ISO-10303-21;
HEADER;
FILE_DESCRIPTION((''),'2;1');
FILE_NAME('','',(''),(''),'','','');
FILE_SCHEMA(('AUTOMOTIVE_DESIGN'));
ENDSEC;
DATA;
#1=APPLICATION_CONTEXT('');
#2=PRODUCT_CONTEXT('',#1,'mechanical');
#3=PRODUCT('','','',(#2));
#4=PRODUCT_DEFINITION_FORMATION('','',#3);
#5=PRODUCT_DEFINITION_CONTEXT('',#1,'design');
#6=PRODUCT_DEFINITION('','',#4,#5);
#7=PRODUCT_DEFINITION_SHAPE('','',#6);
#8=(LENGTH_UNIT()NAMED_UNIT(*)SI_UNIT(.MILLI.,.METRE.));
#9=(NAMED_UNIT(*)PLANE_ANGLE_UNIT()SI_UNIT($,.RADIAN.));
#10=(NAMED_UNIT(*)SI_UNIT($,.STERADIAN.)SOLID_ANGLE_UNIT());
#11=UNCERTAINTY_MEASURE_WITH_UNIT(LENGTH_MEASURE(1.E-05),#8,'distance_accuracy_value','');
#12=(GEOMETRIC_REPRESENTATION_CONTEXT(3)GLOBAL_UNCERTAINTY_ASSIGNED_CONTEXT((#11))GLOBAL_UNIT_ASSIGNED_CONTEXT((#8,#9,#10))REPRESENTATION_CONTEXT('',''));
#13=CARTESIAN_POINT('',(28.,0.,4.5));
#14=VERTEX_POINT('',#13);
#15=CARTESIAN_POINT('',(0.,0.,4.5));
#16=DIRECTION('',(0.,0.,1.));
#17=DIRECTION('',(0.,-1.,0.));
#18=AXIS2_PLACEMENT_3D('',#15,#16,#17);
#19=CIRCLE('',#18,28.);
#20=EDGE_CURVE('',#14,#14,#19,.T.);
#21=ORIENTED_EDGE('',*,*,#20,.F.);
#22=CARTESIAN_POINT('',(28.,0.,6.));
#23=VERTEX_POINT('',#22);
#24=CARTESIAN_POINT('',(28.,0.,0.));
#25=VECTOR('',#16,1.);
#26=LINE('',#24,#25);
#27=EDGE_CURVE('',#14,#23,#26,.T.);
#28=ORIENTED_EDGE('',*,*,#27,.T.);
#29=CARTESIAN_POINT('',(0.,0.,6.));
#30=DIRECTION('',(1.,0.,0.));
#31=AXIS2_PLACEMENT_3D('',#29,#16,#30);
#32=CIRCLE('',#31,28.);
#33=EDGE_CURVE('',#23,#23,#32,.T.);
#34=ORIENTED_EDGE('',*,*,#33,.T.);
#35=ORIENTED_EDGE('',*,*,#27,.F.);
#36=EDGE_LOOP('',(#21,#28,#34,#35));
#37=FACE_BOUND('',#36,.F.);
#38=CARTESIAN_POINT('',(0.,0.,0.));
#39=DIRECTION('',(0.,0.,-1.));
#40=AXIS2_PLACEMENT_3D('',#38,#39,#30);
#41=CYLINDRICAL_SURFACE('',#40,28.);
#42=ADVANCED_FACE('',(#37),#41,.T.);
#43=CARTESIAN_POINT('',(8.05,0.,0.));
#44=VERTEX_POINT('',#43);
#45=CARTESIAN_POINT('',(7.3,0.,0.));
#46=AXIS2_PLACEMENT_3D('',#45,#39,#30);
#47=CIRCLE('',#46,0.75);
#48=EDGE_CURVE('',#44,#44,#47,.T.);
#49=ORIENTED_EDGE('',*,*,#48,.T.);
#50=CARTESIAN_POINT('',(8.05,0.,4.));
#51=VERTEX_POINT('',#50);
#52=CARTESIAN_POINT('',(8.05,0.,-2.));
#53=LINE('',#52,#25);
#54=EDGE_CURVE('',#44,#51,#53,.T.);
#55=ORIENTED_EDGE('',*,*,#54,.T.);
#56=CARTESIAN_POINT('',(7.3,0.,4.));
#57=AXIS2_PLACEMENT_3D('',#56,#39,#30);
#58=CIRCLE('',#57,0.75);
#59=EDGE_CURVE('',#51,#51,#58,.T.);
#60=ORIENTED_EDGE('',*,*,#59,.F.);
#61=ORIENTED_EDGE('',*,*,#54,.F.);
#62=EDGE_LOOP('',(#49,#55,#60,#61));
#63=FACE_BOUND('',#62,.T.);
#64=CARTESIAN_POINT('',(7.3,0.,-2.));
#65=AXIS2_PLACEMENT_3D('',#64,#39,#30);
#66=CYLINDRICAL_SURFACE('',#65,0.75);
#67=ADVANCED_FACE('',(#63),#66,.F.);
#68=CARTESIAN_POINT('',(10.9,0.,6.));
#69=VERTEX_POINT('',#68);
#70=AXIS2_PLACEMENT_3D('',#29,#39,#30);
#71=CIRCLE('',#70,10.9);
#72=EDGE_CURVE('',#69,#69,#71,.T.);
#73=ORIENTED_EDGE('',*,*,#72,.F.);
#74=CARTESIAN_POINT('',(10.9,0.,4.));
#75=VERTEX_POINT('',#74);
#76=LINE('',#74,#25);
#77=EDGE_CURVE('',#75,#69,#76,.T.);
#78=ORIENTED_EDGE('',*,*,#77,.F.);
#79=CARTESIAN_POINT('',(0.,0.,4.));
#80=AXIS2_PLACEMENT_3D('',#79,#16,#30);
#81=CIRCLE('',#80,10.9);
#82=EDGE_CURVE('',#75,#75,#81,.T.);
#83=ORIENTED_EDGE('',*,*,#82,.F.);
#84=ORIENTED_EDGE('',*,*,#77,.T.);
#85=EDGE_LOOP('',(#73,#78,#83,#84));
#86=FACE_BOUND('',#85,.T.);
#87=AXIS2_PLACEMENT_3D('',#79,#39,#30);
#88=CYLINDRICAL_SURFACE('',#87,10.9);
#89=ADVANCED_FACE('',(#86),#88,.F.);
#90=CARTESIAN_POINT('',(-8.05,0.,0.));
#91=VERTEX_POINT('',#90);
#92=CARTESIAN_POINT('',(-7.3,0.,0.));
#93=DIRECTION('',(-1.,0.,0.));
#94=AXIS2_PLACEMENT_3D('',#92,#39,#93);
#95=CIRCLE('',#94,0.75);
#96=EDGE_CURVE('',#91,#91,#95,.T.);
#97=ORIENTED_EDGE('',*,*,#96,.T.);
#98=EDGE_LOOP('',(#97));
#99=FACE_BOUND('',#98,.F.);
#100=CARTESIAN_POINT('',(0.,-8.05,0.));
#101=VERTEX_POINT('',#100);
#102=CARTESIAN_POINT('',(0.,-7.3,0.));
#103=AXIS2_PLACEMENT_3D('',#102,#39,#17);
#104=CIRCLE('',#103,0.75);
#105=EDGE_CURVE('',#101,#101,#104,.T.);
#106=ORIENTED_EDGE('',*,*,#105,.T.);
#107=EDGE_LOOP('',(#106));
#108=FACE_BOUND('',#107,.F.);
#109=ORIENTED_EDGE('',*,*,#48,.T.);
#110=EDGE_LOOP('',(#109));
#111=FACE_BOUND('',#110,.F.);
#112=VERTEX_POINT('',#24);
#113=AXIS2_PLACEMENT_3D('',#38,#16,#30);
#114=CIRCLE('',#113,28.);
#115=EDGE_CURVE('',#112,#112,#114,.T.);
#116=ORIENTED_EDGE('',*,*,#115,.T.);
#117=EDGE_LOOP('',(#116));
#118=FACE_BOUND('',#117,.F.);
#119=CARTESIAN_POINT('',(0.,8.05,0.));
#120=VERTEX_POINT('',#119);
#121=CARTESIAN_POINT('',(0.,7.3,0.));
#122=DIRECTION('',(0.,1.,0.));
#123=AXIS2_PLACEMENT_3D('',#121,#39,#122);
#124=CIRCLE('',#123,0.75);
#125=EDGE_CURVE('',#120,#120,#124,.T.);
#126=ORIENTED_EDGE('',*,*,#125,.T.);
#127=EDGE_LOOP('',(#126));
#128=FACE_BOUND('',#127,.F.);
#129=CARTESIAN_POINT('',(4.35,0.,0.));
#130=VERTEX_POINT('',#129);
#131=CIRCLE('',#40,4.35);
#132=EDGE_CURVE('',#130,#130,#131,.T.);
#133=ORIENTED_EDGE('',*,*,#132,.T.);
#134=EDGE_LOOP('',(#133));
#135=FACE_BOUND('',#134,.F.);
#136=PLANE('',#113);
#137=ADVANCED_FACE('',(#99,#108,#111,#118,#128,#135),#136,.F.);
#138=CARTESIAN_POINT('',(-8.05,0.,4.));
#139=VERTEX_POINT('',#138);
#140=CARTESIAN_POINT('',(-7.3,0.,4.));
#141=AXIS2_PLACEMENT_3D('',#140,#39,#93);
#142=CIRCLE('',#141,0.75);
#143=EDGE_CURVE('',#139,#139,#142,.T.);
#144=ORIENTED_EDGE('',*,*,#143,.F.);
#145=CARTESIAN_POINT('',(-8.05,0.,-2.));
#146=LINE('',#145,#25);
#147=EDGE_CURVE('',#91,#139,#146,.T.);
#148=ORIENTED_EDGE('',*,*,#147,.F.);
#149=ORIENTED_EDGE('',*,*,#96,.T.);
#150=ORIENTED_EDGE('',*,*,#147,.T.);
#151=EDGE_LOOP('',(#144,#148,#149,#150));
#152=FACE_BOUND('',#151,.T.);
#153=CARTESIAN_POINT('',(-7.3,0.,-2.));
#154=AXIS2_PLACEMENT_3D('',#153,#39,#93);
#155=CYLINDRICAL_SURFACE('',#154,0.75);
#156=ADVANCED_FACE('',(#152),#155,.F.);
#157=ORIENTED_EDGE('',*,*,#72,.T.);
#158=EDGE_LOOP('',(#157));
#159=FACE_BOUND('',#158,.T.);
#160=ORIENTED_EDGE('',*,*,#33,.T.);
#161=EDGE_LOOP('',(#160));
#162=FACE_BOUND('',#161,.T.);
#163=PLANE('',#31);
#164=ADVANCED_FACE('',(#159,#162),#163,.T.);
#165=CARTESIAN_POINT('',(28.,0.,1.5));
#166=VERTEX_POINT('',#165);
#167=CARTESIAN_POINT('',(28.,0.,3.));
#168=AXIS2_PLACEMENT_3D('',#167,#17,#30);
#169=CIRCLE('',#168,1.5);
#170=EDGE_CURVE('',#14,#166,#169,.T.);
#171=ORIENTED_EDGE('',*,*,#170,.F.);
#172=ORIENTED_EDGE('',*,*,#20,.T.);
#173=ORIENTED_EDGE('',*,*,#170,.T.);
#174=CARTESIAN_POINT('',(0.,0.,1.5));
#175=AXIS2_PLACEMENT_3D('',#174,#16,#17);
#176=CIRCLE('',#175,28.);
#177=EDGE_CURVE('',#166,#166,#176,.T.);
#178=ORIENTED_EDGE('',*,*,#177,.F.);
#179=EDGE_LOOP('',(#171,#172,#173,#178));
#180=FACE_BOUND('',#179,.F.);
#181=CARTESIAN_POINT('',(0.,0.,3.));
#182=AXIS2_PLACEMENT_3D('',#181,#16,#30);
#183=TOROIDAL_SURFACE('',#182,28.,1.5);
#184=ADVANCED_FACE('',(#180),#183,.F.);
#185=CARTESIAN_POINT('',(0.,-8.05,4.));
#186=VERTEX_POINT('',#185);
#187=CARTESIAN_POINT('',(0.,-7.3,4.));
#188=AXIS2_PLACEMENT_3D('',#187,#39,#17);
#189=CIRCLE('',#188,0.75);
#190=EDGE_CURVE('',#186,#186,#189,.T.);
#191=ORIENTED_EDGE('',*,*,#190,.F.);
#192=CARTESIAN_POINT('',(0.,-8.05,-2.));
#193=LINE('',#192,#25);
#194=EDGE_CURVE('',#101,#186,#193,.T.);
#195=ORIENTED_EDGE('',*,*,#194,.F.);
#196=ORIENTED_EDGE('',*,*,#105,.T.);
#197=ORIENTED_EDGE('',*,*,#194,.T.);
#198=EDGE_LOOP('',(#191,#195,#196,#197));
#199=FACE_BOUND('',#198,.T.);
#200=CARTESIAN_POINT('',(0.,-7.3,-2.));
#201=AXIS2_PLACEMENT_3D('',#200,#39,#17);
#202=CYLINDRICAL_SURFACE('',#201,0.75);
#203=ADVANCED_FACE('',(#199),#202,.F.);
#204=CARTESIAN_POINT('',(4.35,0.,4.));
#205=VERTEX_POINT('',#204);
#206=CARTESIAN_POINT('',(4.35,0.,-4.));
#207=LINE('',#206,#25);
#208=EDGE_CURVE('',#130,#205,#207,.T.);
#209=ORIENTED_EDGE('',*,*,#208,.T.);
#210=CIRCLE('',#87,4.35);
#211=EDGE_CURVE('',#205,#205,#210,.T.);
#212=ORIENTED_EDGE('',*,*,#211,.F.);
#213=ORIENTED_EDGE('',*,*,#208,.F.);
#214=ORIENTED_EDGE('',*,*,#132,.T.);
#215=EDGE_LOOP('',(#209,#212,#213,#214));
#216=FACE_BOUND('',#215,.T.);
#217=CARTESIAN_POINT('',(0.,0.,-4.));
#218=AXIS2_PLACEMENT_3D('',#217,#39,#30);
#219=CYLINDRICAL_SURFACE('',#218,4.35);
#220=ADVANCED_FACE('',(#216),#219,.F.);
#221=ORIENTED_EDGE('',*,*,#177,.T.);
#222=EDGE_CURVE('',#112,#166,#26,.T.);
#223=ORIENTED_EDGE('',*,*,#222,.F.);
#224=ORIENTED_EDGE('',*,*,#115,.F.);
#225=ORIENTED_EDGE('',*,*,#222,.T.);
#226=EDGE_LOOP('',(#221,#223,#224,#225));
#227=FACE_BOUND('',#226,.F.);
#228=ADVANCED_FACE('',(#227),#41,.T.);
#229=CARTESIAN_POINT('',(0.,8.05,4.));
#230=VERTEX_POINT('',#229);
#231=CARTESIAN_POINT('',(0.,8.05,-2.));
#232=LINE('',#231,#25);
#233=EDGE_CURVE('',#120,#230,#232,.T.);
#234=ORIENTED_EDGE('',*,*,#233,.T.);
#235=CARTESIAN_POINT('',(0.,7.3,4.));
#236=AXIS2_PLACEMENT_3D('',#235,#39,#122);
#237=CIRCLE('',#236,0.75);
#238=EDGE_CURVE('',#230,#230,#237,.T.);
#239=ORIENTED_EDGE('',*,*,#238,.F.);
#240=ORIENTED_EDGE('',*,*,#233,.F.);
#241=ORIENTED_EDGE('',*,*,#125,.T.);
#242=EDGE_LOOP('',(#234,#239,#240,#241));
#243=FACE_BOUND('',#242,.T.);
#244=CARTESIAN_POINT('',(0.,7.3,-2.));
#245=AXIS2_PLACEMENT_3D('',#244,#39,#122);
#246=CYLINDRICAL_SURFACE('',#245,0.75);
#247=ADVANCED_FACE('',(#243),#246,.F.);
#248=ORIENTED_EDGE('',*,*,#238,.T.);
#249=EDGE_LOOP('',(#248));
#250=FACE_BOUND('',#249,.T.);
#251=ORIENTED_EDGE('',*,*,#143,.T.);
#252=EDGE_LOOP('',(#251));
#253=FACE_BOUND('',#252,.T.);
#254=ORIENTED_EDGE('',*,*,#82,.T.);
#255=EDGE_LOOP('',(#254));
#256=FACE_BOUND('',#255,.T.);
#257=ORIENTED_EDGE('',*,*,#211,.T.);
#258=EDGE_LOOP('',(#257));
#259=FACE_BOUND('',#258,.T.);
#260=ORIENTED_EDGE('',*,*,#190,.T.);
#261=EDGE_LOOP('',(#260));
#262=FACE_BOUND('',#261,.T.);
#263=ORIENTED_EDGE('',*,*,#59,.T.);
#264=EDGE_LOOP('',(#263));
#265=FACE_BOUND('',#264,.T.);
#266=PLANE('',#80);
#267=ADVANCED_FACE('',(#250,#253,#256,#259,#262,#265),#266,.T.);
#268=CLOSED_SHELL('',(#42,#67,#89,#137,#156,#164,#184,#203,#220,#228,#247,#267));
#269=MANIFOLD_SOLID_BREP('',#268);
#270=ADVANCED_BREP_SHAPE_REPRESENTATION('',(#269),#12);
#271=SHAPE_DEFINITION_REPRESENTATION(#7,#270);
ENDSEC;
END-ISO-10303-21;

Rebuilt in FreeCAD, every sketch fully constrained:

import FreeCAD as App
import Part
import Sketcher
from FreeCAD import Vector
Q = App.Units.Quantity

doc = App.newDocument("Part")
body = doc.addObject("PartDesign::Body", "Body")

# Sketch on XY plane
sketch1 = body.newObject("Sketcher::SketchObject", "Sketch")
sketch1.AttachmentSupport = (doc.getObject("XY_Plane"), [""])
sketch1.MapMode = "FlatFace"
sketch1.AttachmentOffset = App.Placement(Vector(0, 0, -2), App.Rotation())
sketch1.addGeometry(Part.Circle(Vector(7.3, 0, 0), Vector(0, 0, 1), 0.8), False)
sketch1.addConstraint([
    Sketcher.Constraint("PointOnObject", 0, 3, -1),
    Sketcher.Constraint("Diameter", 0, Q("1.5 mm")),
    Sketcher.Constraint("DistanceX", -1, 1, 0, 3, Q("7.3 mm")),
])
pad1 = body.newObject("PartDesign::Pad", "Pad")
pad1.Profile = sketch1
pad1.Length = 10
body2 = doc.addObject("PartDesign::Body", "Body001")
body2.AllowCompound = True
doc.recompute()

body2.BaseFeature = body
doc.recompute()

body3 = doc.addObject("PartDesign::Body", "Body002")
body3.BaseFeature = body
body3.Placement = App.Placement(Vector(0, 0, 0), App.Rotation(Vector(0, 0, 1), 90))
boolean = body2.newObject("PartDesign::Boolean", "Boolean")
boolean.Type = "Fuse"
boolean.addObjects([body3])
doc.recompute()

body4 = doc.addObject("PartDesign::Body", "Body003")
body4.BaseFeature = body
body4.Placement = App.Placement(Vector(0, 0, 0), App.Rotation(Vector(0, 0, 1), 180))
boolean2 = body2.newObject("PartDesign::Boolean", "Boolean001")
boolean2.Type = "Fuse"
boolean2.addObjects([body4])
doc.recompute()

body.Placement = App.Placement(Vector(0, 0, 0), App.Rotation(Vector(0, 0, 1), 270))
boolean3 = body2.newObject("PartDesign::Boolean", "Boolean002")
boolean3.Type = "Fuse"
boolean3.addObjects([body])
body5 = doc.addObject("PartDesign::Body", "Body004")

# Sketch on XY plane
sketch2 = body5.newObject("Sketcher::SketchObject", "Sketch001")
sketch2.AttachmentSupport = (doc.getObject("XY_Plane004"), [""])
sketch2.MapMode = "FlatFace"
sketch2.AttachmentOffset = App.Placement(Vector(0, 0, -4), App.Rotation())
sketch2.addGeometry(Part.Circle(Vector(0, 0, 0), Vector(0, 0, 1), 4.3), False)
sketch2.addConstraint([
    Sketcher.Constraint("Coincident", 0, 3, -1, 1),
    Sketcher.Constraint("Diameter", 0, Q("8.7 mm")),
])
pad2 = body5.newObject("PartDesign::Pad", "Pad001")
pad2.Profile = sketch2
pad2.Length = 10
body6 = doc.addObject("PartDesign::Body", "Body005")

# Sketch on XY plane
sketch3 = body6.newObject("Sketcher::SketchObject", "Sketch002")
sketch3.AttachmentSupport = (doc.getObject("XY_Plane005"), [""])
sketch3.MapMode = "FlatFace"
sketch3.AttachmentOffset = App.Placement(Vector(0, 0, 4), App.Rotation())
sketch3.addGeometry(Part.Circle(Vector(0, 0, 0), Vector(0, 0, 1), 11), False)
sketch3.addConstraint([
    Sketcher.Constraint("Coincident", 0, 3, -1, 1),
    Sketcher.Constraint("Diameter", 0, Q("21.8 mm")),
])
pad3 = body6.newObject("PartDesign::Pad", "Pad002")
pad3.Profile = sketch3
pad3.Length = 10
body7 = doc.addObject("PartDesign::Body", "Body006")

# Sketch on XZ plane
sketch4 = body7.newObject("Sketcher::SketchObject", "Sketch003")
sketch4.AttachmentSupport = (doc.getObject("XZ_Plane006"), [""])
sketch4.MapMode = "FlatFace"
sketch4.addGeometry(Part.Circle(Vector(28, 3, 0), Vector(0, 0, 1), 1.5), False)
sketch4.addConstraint([
    Sketcher.Constraint("Diameter", 0, Q("3 mm")),
    Sketcher.Constraint("DistanceX", -1, 1, 0, 3, Q("28 mm")),
    Sketcher.Constraint("DistanceY", -1, 1, 0, 3, Q("3 mm")),
])
revolution = body7.newObject("PartDesign::Revolution", "Revolution")
revolution.Profile = sketch4
revolution.ReferenceAxis = (sketch4, ["V_Axis"])
revolution.Angle = 360
body8 = doc.addObject("PartDesign::Body", "Body007")

# Sketch on XY plane
sketch5 = body8.newObject("Sketcher::SketchObject", "Sketch004")
sketch5.AttachmentSupport = (doc.getObject("XY_Plane007"), [""])
sketch5.MapMode = "FlatFace"
sketch5.addGeometry(Part.Circle(Vector(0, 0, 0), Vector(0, 0, 1), 28), False)
sketch5.addConstraint([
    Sketcher.Constraint("Coincident", 0, 3, -1, 1),
    Sketcher.Constraint("Diameter", 0, Q("56 mm")),
])
pad4 = body8.newObject("PartDesign::Pad", "Pad003")
pad4.Profile = sketch5
pad4.Length = 6
doc.recompute()

boolean4 = body8.newObject("PartDesign::Boolean", "Boolean003")
boolean4.Type = "Cut"
boolean4.addObjects([body7])
doc.recompute()

boolean5 = body8.newObject("PartDesign::Boolean", "Boolean004")
boolean5.Type = "Cut"
boolean5.addObjects([body6])
doc.recompute()

boolean6 = body8.newObject("PartDesign::Boolean", "Boolean005")
boolean6.Type = "Cut"
boolean6.addObjects([body5])
doc.recompute()

boolean7 = body8.newObject("PartDesign::Boolean", "Boolean006")
boolean7.Type = "Cut"
boolean7.addObjects([body2])

doc.recompute()
